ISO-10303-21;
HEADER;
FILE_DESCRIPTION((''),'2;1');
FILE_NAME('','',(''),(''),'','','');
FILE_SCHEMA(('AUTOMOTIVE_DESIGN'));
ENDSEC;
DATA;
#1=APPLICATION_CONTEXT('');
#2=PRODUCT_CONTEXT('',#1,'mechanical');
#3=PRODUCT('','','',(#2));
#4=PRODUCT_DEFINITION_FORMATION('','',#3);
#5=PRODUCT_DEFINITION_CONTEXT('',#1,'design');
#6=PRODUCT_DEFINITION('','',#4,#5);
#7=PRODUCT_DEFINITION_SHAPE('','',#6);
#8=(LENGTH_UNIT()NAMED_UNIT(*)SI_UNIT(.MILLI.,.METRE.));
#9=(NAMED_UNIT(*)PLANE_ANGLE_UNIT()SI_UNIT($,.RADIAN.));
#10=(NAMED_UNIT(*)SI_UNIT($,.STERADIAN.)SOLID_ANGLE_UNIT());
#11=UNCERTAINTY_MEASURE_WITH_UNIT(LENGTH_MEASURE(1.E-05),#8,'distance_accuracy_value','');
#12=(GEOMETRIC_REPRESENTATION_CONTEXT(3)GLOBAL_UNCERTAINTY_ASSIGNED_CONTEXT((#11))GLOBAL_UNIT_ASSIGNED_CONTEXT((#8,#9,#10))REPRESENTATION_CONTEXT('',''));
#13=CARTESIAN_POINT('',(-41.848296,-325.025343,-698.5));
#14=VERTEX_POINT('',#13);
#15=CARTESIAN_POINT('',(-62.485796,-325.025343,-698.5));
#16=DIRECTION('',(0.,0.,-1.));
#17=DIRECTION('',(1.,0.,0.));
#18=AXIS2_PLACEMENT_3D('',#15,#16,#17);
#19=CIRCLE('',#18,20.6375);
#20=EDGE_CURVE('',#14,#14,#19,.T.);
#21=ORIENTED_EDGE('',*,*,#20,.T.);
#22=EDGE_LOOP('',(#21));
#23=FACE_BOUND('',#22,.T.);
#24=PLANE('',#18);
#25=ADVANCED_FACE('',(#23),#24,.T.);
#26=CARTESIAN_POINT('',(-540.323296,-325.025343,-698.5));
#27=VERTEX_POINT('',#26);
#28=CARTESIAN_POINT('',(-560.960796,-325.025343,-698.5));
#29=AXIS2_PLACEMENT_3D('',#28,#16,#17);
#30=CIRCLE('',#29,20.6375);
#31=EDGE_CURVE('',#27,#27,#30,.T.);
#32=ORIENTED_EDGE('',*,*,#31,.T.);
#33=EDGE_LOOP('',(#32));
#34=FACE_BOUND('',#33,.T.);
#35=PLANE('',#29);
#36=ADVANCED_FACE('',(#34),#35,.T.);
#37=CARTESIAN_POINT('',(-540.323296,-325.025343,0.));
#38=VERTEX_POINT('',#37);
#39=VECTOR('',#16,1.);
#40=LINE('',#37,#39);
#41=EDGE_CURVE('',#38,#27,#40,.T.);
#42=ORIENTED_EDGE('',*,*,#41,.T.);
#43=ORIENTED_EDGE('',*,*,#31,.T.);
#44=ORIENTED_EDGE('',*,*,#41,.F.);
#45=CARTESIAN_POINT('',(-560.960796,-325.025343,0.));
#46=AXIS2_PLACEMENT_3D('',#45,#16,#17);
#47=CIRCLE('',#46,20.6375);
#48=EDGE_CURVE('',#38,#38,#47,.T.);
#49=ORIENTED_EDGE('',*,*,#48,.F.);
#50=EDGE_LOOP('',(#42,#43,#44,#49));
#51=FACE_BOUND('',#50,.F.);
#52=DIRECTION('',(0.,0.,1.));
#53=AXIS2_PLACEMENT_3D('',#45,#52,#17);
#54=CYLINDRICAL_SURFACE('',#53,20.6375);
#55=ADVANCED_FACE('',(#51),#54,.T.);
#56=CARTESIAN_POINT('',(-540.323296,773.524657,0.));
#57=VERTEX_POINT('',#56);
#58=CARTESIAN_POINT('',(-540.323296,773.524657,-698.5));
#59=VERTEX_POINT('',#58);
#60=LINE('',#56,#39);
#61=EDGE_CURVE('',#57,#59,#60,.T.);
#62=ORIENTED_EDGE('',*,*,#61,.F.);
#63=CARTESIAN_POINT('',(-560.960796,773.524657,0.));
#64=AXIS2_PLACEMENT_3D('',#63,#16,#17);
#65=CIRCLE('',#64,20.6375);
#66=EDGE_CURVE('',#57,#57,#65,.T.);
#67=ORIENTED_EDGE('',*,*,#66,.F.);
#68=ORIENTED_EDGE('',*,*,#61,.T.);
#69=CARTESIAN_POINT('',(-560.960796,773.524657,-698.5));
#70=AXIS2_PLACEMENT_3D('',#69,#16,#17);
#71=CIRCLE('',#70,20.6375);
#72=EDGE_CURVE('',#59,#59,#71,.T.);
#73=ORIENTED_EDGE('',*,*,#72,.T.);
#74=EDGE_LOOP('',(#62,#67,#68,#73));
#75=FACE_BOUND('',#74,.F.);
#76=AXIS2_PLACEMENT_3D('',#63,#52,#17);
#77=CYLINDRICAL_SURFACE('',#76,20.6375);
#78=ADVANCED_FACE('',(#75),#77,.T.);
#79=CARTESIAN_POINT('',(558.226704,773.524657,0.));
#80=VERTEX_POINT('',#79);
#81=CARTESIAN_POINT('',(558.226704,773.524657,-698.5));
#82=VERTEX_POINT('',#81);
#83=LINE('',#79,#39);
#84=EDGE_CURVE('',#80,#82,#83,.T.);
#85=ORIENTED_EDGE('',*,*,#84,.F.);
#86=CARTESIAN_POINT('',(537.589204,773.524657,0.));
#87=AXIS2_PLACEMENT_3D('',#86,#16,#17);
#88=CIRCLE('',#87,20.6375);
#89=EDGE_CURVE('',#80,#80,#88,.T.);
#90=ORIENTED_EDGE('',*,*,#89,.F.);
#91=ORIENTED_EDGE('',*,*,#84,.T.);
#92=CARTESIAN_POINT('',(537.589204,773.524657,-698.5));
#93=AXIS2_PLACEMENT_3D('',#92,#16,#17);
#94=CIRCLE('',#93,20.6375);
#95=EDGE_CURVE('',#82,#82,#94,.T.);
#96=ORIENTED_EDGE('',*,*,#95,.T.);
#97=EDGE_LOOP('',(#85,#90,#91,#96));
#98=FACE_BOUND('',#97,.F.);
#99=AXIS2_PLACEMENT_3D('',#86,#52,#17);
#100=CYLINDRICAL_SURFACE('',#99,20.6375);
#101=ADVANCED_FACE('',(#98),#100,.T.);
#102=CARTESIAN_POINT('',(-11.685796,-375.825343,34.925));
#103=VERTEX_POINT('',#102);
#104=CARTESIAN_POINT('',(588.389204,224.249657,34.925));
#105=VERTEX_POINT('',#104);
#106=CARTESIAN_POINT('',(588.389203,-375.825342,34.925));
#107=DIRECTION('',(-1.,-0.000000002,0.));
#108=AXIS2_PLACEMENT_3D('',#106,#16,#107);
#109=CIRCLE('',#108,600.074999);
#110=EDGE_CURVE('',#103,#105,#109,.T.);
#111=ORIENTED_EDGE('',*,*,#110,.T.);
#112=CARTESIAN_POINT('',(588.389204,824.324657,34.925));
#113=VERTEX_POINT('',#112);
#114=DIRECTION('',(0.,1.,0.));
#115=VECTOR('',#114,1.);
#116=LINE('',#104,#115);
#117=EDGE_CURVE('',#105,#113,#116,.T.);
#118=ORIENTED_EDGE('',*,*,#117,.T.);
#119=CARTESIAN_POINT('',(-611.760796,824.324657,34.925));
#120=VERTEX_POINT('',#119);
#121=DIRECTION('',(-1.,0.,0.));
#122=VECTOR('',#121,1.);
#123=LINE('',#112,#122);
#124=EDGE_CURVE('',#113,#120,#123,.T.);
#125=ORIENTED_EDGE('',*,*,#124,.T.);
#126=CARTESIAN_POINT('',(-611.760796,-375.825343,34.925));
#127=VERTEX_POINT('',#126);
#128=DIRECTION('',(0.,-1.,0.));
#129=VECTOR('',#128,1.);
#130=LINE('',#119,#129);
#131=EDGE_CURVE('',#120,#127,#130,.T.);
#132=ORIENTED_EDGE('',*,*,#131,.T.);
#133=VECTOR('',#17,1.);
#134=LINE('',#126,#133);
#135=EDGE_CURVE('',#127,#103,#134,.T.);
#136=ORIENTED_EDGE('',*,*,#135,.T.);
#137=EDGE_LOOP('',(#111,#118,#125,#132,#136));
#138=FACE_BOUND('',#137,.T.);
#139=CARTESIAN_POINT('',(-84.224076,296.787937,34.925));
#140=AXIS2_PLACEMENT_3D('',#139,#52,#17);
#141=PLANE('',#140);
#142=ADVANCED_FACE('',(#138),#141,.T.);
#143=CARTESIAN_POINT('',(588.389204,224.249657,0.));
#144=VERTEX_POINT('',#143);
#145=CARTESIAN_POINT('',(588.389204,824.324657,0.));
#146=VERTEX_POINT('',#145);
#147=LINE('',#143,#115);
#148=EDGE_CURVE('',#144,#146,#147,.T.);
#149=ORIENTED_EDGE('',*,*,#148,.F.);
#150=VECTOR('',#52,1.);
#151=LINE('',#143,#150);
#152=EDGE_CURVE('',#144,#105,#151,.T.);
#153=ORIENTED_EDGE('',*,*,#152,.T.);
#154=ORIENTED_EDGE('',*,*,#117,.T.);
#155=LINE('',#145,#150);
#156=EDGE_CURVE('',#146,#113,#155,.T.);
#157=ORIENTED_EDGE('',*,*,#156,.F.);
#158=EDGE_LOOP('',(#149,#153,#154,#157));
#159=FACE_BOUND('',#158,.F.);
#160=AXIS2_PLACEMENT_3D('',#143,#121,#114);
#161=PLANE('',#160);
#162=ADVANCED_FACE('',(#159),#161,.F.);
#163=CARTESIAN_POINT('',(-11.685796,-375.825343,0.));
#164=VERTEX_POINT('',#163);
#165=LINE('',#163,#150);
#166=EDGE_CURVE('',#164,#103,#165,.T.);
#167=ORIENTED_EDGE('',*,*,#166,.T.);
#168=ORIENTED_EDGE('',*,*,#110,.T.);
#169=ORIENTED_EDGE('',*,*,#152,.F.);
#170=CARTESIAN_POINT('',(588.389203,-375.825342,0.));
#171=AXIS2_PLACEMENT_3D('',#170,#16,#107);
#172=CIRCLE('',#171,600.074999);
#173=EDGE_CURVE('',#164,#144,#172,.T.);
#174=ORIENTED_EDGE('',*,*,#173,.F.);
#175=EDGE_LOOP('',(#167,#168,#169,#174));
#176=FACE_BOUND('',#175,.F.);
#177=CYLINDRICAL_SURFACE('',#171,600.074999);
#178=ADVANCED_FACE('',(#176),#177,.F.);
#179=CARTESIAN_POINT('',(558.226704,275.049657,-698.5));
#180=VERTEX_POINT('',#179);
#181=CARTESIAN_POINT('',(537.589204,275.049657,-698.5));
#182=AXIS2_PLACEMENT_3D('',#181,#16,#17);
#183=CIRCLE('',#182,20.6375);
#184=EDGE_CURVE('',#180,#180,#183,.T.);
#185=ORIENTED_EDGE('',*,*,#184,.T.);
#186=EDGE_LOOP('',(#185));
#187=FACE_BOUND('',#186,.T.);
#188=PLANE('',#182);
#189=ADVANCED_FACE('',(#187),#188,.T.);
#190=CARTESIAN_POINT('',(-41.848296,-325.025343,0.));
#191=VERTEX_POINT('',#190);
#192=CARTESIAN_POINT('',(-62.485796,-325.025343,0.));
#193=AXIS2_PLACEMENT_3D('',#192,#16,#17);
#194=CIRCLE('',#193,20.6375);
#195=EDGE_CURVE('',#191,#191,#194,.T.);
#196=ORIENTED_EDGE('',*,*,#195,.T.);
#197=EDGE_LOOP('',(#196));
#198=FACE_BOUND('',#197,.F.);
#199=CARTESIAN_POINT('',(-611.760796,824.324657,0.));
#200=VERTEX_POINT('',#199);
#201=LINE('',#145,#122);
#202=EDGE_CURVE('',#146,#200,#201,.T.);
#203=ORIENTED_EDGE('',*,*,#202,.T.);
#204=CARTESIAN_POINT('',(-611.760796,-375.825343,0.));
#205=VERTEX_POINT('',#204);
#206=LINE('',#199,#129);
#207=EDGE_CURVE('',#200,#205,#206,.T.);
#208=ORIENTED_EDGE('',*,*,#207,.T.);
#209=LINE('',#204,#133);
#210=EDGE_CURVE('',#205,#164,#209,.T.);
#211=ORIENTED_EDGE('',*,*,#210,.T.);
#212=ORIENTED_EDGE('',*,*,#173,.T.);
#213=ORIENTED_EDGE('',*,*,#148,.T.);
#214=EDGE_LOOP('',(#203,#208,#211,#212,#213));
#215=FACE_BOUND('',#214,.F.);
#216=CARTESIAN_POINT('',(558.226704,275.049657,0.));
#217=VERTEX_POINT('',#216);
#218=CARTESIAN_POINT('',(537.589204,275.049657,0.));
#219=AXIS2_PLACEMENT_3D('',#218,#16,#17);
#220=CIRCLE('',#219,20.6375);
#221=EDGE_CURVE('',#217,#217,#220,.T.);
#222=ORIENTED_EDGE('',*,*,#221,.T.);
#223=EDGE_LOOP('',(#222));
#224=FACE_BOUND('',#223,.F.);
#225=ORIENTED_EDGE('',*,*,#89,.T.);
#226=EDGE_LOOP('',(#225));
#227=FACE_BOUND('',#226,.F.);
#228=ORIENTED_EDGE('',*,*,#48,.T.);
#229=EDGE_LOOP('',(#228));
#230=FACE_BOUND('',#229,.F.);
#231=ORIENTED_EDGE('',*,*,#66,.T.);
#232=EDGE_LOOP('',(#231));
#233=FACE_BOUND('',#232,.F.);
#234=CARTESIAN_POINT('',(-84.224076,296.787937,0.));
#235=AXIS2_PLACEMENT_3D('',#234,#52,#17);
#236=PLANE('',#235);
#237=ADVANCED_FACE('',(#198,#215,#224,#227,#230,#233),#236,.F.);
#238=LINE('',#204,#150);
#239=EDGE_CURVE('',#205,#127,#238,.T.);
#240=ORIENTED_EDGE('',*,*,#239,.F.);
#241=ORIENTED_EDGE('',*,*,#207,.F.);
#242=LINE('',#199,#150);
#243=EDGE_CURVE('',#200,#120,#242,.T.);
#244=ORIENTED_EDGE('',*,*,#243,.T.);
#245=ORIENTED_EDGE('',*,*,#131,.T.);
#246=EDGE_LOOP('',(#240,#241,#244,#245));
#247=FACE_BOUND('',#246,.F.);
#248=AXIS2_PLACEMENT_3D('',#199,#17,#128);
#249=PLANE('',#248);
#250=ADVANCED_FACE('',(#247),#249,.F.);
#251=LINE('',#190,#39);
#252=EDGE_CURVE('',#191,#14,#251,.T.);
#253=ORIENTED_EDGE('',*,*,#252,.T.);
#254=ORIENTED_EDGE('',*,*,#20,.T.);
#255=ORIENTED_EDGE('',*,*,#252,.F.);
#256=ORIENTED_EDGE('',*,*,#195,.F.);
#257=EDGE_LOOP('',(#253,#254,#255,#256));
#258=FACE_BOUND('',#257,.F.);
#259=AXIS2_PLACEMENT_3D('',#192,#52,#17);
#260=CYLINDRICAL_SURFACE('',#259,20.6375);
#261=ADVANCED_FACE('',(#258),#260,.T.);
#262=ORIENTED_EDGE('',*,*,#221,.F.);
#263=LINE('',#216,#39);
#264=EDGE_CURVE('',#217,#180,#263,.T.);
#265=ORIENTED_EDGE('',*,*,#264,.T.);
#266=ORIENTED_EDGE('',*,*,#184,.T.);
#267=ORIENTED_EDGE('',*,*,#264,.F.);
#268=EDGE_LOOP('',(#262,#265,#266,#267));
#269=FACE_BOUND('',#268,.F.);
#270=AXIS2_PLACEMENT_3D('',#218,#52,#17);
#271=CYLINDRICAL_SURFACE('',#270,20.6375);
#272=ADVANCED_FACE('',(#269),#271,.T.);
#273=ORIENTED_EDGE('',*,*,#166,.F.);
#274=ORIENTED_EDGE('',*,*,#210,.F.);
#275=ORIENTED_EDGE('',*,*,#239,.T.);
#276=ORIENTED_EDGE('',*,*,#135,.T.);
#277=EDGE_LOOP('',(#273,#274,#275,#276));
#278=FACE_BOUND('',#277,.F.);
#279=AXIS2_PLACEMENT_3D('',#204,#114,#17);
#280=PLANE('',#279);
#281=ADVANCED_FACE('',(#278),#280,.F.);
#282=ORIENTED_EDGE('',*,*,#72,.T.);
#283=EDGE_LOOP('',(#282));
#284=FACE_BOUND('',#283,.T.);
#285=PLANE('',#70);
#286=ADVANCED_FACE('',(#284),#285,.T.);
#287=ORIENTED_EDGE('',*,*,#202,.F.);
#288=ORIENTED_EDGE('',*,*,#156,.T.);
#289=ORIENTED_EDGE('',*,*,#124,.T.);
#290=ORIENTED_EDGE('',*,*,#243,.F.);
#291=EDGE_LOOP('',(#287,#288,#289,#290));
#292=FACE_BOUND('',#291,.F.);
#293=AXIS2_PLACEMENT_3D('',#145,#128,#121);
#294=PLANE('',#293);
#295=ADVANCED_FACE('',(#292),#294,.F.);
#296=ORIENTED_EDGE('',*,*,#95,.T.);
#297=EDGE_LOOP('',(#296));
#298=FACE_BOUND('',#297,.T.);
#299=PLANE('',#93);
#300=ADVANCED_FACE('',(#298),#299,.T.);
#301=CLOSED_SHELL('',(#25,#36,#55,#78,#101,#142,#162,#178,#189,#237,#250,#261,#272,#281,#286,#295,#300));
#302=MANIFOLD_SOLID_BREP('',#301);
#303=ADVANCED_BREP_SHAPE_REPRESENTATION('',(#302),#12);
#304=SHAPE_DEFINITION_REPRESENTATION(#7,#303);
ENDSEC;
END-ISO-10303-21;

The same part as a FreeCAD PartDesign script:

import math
import FreeCAD as App
import Part
import Sketcher
Q = App.Units.Quantity

doc = App.newDocument("Part")
body = doc.addObject("PartDesign::Body", "Body")

sketch1 = doc.addObject("Sketcher::SketchObject", "Sketch")
body.addObject(sketch1)
sketch1.AttachmentSupport = (doc.XY_Plane, [""])
sketch1.MapMode = "FlatFace"
sketch1.addGeometry([
    Part.LineSegment(App.Vector(588, 224, 0), App.Vector(588, 824, 0)),
    Part.LineSegment(App.Vector(588, 824, 0), App.Vector(-612, 824, 0)),
    Part.LineSegment(App.Vector(-612, 824, 0), App.Vector(-612, -376, 0)),
    Part.LineSegment(App.Vector(-612, -376, 0), App.Vector(-12, -376, 0)),
    Part.ArcOfCircle(Part.Circle(App.Vector(588, -376, 0), App.Vector(0, 0, 1), 600), math.radians(90), math.radians(180)),
], False)
sketch1.addConstraint([
    Sketcher.Constraint("Coincident", 0, 2, 1, 1),
    Sketcher.Constraint("Coincident", 1, 2, 2, 1),
    Sketcher.Constraint("Coincident", 2, 2, 3, 1),
    Sketcher.Constraint("Coincident", 3, 2, 4, 2),
    Sketcher.Constraint("Coincident", 4, 1, 0, 1),
    Sketcher.Constraint("Vertical", 0),
    Sketcher.Constraint("Horizontal", 1),
    Sketcher.Constraint("Vertical", 2),
    Sketcher.Constraint("Horizontal", 3),
    Sketcher.Constraint("Horizontal", 4, 3, 2, 2),
    Sketcher.Constraint("Vertical", 4, 3, 0, 2),
    Sketcher.Constraint("Equal", 3, 0),
    Sketcher.Constraint("Radius", 4, Q("23.625 in")),
    Sketcher.Constraint("DistanceX", 1, 2, 1, 1, Q("47.25 in")),
    Sketcher.Constraint("DistanceX", -1, 1, 4, 3, 588.389203),
    Sketcher.Constraint("DistanceY", 4, 3, -1, 1, 375.825342),
])
pad1 = doc.addObject("PartDesign::Pad", "Pad")
body.addObject(pad1)
pad1.Profile = sketch1
pad1.Length = Q("1.375 in")

sketch2 = doc.addObject("Sketcher::SketchObject", "Sketch001")
body.addObject(sketch2)
sketch2.AttachmentSupport = (doc.XY_Plane, [""])
sketch2.MapMode = "FlatFace"
sketch2.addGeometry([
    Part.Circle(App.Vector(-62, -325, 0), App.Vector(0, 0, 1), 21),
    Part.Circle(App.Vector(-561, -325, 0), App.Vector(0, 0, 1), 21),
    Part.Circle(App.Vector(-561, 774, 0), App.Vector(0, 0, 1), 21),
    Part.Circle(App.Vector(538, 774, 0), App.Vector(0, 0, 1), 21),
    Part.Circle(App.Vector(538, 275, 0), App.Vector(0, 0, 1), 21),
], False)
sketch2.addConstraint([
    Sketcher.Constraint("Equal", 0, 1),
    Sketcher.Constraint("Equal", 1, 2),
    Sketcher.Constraint("Equal", 2, 3),
    Sketcher.Constraint("Equal", 3, 4),
    Sketcher.Constraint("Horizontal", 0, 3, 1, 3),
    Sketcher.Constraint("Horizontal", 2, 3, 3, 3),
    Sketcher.Constraint("Vertical", 1, 3, 2, 3),
    Sketcher.Constraint("Vertical", 3, 3, 4, 3),
    Sketcher.Constraint("Diameter", 0, Q("1.625 in")),
    Sketcher.Constraint("DistanceY", 1, 3, 2, 3, Q("43.25 in")),
    Sketcher.Constraint("DistanceX", 2, 3, 3, 3, Q("43.25 in")),
    Sketcher.Constraint("DistanceX", 1, 3, 0, 3, Q("19.625 in")),
    Sketcher.Constraint("DistanceY", 4, 3, 3, 3, Q("19.625 in")),
    Sketcher.Constraint("DistanceX", 0, 3, -1, 1, 62.485796),
    Sketcher.Constraint("DistanceY", 0, 3, -1, 1, 325.025343),
])
pad2 = doc.addObject("PartDesign::Pad", "Pad001")
body.addObject(pad2)
pad2.Profile = sketch2
pad2.Length = Q("27.5 in")
pad2.Reversed = True

doc.recompute()
